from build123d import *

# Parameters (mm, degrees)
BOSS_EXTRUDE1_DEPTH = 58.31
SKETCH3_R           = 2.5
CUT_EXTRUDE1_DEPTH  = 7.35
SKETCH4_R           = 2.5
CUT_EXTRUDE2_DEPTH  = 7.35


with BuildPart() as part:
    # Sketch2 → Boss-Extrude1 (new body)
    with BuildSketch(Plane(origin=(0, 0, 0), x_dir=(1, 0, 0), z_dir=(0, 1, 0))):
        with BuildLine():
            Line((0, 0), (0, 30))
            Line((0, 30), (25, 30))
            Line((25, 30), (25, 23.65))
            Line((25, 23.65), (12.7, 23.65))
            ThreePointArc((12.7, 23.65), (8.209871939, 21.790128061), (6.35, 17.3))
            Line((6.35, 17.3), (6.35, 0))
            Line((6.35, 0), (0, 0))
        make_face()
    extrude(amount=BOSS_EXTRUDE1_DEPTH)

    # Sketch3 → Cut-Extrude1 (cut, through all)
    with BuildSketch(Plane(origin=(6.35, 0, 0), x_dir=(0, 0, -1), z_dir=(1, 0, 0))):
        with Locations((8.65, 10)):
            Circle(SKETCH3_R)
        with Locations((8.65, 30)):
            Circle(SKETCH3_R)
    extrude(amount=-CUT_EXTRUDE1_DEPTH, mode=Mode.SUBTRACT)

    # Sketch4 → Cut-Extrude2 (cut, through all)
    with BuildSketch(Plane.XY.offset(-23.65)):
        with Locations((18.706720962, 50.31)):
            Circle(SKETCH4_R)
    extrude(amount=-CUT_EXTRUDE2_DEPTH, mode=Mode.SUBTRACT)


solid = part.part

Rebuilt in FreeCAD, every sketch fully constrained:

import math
import FreeCAD as App
import Part
import Sketcher

V = App.Vector

doc = App.newDocument("Part")
body = doc.addObject("PartDesign::Body", "Body")

sketch1 = doc.addObject("Sketcher::SketchObject", "Sketch")
body.addObject(sketch1)
sketch1.AttachmentSupport = (doc.XZ_Plane, [""])
sketch1.MapMode = "FlatFace"
sketch1.addGeometry([
    Part.LineSegment(V(0, -30, 0), V(0, 0, 0)),
    Part.LineSegment(V(0, 0, 0), V(6, 0, 0)),
    Part.LineSegment(V(6, 0, 0), V(6, -17, 0)),
    Part.ArcOfCircle(Part.Circle(V(13, -17, 0), V(0, 0, 1), 6), math.radians(180), math.radians(270)),
    Part.LineSegment(V(13, -24, 0), V(25, -24, 0)),
    Part.LineSegment(V(25, -24, 0), V(25, -30, 0)),
    Part.LineSegment(V(25, -30, 0), V(0, -30, 0)),
], False)
sketch1.addConstraint([
    Sketcher.Constraint("Coincident", 0, 2, 1, 1),
    Sketcher.Constraint("Coincident", 1, 2, 2, 1),
    Sketcher.Constraint("Tangent", 2, 2, 3, 1),
    Sketcher.Constraint("Tangent", 3, 2, 4, 1),
    Sketcher.Constraint("Coincident", 4, 2, 5, 1),
    Sketcher.Constraint("Coincident", 5, 2, 6, 1),
    Sketcher.Constraint("Coincident", 6, 2, 0, 1),
    Sketcher.Constraint("Vertical", 0),
    Sketcher.Constraint("Horizontal", 1),
    Sketcher.Constraint("Vertical", 2),
    Sketcher.Constraint("Horizontal", 4),
    Sketcher.Constraint("Vertical", 5),
    Sketcher.Constraint("Horizontal", 6),
    Sketcher.Constraint("Coincident", 0, 2, -1, 1),
    Sketcher.Constraint("Equal", 1, 5),
    Sketcher.Constraint("DistanceX", 6, 2, 6, 1, 25.0),
    Sketcher.Constraint("DistanceY", 0, 1, 0, 2, 30.0),
    Sketcher.Constraint("Radius", 3, 6.35),
    Sketcher.Constraint("DistanceX", 4, 1, 4, 2, 12.3),
])
pad1 = doc.addObject("PartDesign::Pad", "Pad")
body.addObject(pad1)
pad1.Profile = sketch1
pad1.Length = 58.31
pad1.Reversed = True

sketch2 = doc.addObject("Sketcher::SketchObject", "Sketch001")
body.addObject(sketch2)
sketch2.AttachmentSupport = (doc.YZ_Plane, [""])
sketch2.MapMode = "FlatFace"
sketch2.AttachmentOffset = App.Placement(V(0, 0, 6.35), App.Rotation())
sketch2.addGeometry([
    Part.Circle(V(10, -8.7, 0), V(0, 0, 1), 2.5),
    Part.Circle(V(30, -8.7, 0), V(0, 0, 1), 2.5),
], False)
sketch2.addConstraint([
    Sketcher.Constraint("Equal", 0, 1),
    Sketcher.Constraint("Horizontal", 0, 3, 1, 3),
    Sketcher.Constraint("Diameter", 0, 5.0),
    Sketcher.Constraint("DistanceX", -1, 1, 0, 3, 10.0),
    Sketcher.Constraint("DistanceX", -1, 1, 1, 3, 30.0),
    Sketcher.Constraint("DistanceY", 0, 3, -1, 1, 8.65),
])
pocket1 = doc.addObject("PartDesign::Pocket", "Pocket")
body.addObject(pocket1)
pocket1.Profile = sketch2
pocket1.Type = "ThroughAll"

sketch3 = doc.addObject("Sketcher::SketchObject", "Sketch002")
body.addObject(sketch3)
sketch3.AttachmentSupport = (doc.XY_Plane, [""])
sketch3.MapMode = "FlatFace"
sketch3.AttachmentOffset = App.Placement(V(0, 0, -23.65), App.Rotation())
sketch3.addGeometry(Part.Circle(V(18.7, 50.3, 0), V(0, 0, 1), 2.5), False)
sketch3.addConstraint([
    Sketcher.Constraint("Diameter", 0, 5.0),
    Sketcher.Constraint("DistanceY", -1, 1, 0, 3, 50.31),
    Sketcher.Constraint("DistanceX", -1, 1, 0, 3, 18.706721),
])
pocket2 = doc.addObject("PartDesign::Pocket", "Pocket001")
body.addObject(pocket2)
pocket2.Profile = sketch3
pocket2.Type = "ThroughAll"

doc.recompute()
